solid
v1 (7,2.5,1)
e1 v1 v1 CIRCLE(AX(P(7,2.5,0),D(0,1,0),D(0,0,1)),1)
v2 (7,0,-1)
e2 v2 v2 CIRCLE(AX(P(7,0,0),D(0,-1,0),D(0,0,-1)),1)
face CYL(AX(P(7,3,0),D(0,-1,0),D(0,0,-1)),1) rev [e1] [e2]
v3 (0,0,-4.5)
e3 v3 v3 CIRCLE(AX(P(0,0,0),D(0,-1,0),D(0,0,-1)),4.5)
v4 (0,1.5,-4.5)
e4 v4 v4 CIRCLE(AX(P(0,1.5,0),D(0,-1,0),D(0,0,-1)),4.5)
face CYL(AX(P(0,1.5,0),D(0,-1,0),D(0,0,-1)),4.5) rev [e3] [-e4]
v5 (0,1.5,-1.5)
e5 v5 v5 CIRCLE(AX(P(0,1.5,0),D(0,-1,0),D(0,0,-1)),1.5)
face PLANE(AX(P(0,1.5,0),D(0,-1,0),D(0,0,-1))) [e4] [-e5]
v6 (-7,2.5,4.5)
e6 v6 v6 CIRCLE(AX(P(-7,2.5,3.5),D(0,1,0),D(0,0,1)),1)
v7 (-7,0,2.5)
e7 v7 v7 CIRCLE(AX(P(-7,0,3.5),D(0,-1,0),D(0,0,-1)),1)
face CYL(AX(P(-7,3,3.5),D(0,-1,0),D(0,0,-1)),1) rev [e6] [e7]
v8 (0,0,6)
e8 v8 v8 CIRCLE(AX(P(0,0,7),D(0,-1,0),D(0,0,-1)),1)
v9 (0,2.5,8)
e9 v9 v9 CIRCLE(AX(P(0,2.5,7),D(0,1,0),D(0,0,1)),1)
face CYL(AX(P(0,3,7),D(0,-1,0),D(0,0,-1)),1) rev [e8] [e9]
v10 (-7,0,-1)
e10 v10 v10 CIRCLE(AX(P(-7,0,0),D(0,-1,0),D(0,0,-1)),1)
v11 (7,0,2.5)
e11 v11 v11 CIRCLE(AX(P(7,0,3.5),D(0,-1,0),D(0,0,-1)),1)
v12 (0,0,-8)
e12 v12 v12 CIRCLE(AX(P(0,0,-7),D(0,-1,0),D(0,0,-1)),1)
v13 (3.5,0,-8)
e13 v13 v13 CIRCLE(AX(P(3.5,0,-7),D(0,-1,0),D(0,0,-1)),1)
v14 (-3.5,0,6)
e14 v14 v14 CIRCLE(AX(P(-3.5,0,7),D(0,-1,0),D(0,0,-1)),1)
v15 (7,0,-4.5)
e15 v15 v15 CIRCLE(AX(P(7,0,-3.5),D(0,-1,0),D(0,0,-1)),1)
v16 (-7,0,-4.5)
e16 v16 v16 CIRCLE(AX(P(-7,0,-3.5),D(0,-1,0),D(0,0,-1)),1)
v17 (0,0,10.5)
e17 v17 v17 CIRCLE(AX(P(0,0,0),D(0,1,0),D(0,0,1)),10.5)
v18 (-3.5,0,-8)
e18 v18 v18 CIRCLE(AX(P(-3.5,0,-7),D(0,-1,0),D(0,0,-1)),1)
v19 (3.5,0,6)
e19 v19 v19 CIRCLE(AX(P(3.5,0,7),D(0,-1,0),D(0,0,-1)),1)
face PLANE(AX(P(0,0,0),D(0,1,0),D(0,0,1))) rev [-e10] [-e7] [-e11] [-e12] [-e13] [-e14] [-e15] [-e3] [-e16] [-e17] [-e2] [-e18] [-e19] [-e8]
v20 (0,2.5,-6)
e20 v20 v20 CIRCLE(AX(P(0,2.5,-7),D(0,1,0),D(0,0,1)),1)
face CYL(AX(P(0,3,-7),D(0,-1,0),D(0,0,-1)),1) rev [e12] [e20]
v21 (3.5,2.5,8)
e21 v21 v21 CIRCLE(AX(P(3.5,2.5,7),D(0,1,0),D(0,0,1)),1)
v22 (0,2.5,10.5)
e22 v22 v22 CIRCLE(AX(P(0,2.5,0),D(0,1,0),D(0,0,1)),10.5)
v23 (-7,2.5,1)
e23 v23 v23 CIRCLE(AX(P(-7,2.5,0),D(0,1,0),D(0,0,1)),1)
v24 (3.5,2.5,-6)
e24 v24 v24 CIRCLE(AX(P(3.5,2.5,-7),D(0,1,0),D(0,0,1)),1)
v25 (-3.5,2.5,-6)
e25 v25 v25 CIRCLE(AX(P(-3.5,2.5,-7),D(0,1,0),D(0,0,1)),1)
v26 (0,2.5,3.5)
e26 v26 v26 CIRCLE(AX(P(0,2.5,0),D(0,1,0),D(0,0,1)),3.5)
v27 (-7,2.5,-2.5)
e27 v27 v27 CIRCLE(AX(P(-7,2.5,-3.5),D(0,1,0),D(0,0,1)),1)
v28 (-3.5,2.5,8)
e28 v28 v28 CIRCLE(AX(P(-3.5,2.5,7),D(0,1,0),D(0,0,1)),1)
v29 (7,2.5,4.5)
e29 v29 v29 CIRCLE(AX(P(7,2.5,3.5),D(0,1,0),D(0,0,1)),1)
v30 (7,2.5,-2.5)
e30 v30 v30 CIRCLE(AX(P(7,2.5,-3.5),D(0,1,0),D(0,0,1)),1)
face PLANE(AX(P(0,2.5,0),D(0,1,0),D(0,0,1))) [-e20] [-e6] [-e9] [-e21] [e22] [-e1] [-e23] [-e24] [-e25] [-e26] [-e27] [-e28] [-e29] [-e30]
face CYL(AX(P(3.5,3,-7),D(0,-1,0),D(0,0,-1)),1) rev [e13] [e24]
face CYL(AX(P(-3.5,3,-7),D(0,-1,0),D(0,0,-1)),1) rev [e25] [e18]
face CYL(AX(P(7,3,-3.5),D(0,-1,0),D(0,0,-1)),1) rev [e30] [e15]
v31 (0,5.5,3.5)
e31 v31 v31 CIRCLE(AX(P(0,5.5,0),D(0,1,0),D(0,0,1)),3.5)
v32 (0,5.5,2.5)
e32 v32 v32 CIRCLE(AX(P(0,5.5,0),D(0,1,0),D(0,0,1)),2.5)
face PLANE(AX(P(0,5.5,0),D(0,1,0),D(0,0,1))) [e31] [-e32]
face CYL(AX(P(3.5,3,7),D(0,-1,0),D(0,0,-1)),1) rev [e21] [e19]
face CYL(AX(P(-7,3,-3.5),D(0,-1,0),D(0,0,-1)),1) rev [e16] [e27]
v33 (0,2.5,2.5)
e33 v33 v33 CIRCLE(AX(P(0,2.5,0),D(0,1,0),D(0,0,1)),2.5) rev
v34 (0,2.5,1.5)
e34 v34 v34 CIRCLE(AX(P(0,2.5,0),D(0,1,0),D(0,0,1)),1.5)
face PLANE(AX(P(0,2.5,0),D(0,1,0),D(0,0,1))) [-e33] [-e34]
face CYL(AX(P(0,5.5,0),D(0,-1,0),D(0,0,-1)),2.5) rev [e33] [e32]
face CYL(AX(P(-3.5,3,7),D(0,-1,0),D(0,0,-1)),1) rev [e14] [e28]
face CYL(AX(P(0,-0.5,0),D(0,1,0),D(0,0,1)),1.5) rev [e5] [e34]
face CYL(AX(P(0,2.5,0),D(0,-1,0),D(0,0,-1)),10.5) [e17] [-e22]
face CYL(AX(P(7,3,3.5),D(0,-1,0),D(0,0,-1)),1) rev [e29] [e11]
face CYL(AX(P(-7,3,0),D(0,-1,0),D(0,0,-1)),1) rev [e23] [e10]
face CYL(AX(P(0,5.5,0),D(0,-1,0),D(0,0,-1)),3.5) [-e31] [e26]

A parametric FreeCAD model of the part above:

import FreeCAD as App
import Part
import Sketcher
from FreeCAD import Vector
Q = App.Units.Quantity

doc = App.newDocument("Part")
params = doc.addObject("Spreadsheet::Sheet", "Params")
for row, (alias, value) in enumerate([
    ("sketch1_diameter", "21 mm"),
    ("pad1_length", "2.5 mm"),
    ("sketch2_diameter", "7 mm"),
    ("sketch2_diameter2", "5 mm"),
    ("pad2_length", "3 mm"),
    ("sketch3_diameter", "3 mm"),
    ("pocket1_length", "3 mm"),
    ("sketch4_diameter", "9 mm"),
    ("sketch4_diameter2", "3 mm"),
    ("pocket2_length", "1.5 mm"),
    ("sketch5_diameter", "2 mm"),
    ("pocket3_length", "3 mm"),
], start=1):
    params.set(f"A{row}", alias)
    params.set(f"B{row}", "=" + value)
    params.setAlias(f"B{row}", alias)

body = doc.addObject("PartDesign::Body", "Body")

# Sketch on XZ plane
sketch1 = body.newObject("Sketcher::SketchObject", "Sketch")
sketch1.AttachmentSupport = (doc.getObject("XZ_Plane"), [""])
sketch1.MapMode = "FlatFace"
sketch1.addGeometry(Part.Circle(Vector(0, 0, 0), Vector(0, 0, 1), 10), False)
sketch1.addConstraint([
    Sketcher.Constraint("Coincident", 0, 3, -1, 1),
    Sketcher.Constraint("Diameter", 0, Q("21 mm")),
])
sketch1.setExpression("Constraints[1]", "Params.sketch1_diameter")
pad1 = body.newObject("PartDesign::Pad", "Pad")
pad1.Profile = sketch1
pad1.setExpression("Length", "Params.pad1_length")
pad1.Reversed = True

# Sketch on XZ plane
sketch2 = body.newObject("Sketcher::SketchObject", "Sketch001")
sketch2.AttachmentSupport = (doc.getObject("XZ_Plane"), [""])
sketch2.MapMode = "FlatFace"
sketch2.AttachmentOffset = App.Placement(Vector(0, 0, -2.5), App.Rotation())
sketch2.addGeometry([
    Part.Circle(Vector(0, 0, 0), Vector(0, 0, 1), 3.5),
    Part.Circle(Vector(0, 0, 0), Vector(0, 0, 1), 2.5),
], False)
sketch2.addConstraint([
    Sketcher.Constraint("Coincident", 0, 3, -1, 1),
    Sketcher.Constraint("Coincident", 1, 3, -1, 1),
    Sketcher.Constraint("Diameter", 0, Q("7 mm")),
    Sketcher.Constraint("Diameter", 1, Q("5 mm")),
])
sketch2.setExpression("Constraints[2]", "Params.sketch2_diameter")
sketch2.setExpression("Constraints[3]", "Params.sketch2_diameter2")
pad2 = body.newObject("PartDesign::Pad", "Pad001")
pad2.Profile = sketch2
pad2.setExpression("Length", "Params.pad2_length")
pad2.Reversed = True

# Sketch on XZ plane
sketch3 = body.newObject("Sketcher::SketchObject", "Sketch002")
sketch3.AttachmentSupport = (doc.getObject("XZ_Plane"), [""])
sketch3.MapMode = "FlatFace"
sketch3.AttachmentOffset = App.Placement(Vector(0, 0, -2.5), App.Rotation())
sketch3.addGeometry(Part.Circle(Vector(0, 0, 0), Vector(0, 0, 1), 1.5), False)
sketch3.addConstraint([
    Sketcher.Constraint("Coincident", 0, 3, -1, 1),
    Sketcher.Constraint("Diameter", 0, Q("3 mm")),
])
sketch3.setExpression("Constraints[1]", "Params.sketch3_diameter")
pocket1 = body.newObject("PartDesign::Pocket", "Pocket")
pocket1.Profile = sketch3
pocket1.setExpression("Length", "Params.pocket1_length")
pocket1.Reversed = True

# Sketch on XZ plane
sketch4 = body.newObject("Sketcher::SketchObject", "Sketch003")
sketch4.AttachmentSupport = (doc.getObject("XZ_Plane"), [""])
sketch4.MapMode = "FlatFace"
sketch4.AttachmentOffset = App.Placement(Vector(0, 0, -1.5), App.Rotation())
sketch4.addGeometry([
    Part.Circle(Vector(0, 0, 0), Vector(0, 0, 1), 4.5),
    Part.Circle(Vector(0, 0, 0), Vector(0, 0, 1), 1.5),
], False)
sketch4.addConstraint([
    Sketcher.Constraint("Coincident", 0, 3, -1, 1),
    Sketcher.Constraint("Coincident", 1, 3, -1, 1),
    Sketcher.Constraint("Diameter", 0, Q("9 mm")),
    Sketcher.Constraint("Diameter", 1, Q("3 mm")),
])
sketch4.setExpression("Constraints[2]", "Params.sketch4_diameter")
sketch4.setExpression("Constraints[3]", "Params.sketch4_diameter2")
pocket2 = body.newObject("PartDesign::Pocket", "Pocket001")
pocket2.Profile = sketch4
pocket2.setExpression("Length", "Params.pocket2_length")
pocket2.Reversed = True

# Sketch on XZ plane
sketch5 = body.newObject("Sketcher::SketchObject", "Sketch004")
sketch5.AttachmentSupport = (doc.getObject("XZ_Plane"), [""])
sketch5.MapMode = "FlatFace"
sketch5.addGeometry([
    Part.Circle(Vector(0, 7, 0), Vector(0, 0, 1), 1),  # 0
    Part.Circle(Vector(3.5, 7, 0), Vector(0, 0, 1), 1),  # 1
    Part.Circle(Vector(-3.5, 7, 0), Vector(0, 0, 1), 1),  # 2
    Part.Circle(Vector(7, 3.5, 0), Vector(0, 0, 1), 1),  # 3
    Part.Circle(Vector(7, 0, 0), Vector(0, 0, 1), 1),  # 4
    Part.Circle(Vector(7, -3.5, 0), Vector(0, 0, 1), 1),  # 5
    Part.Circle(Vector(3.5, -7, 0), Vector(0, 0, 1), 1),  # 6
    Part.Circle(Vector(0, -7, 0), Vector(0, 0, 1), 1),  # 7
    Part.Circle(Vector(-3.5, -7, 0), Vector(0, 0, 1), 1),  # 8
    Part.Circle(Vector(-7, -3.5, 0), Vector(0, 0, 1), 1),  # 9
    Part.Circle(Vector(-7, 0, 0), Vector(0, 0, 1), 1),  # 10
    Part.Circle(Vector(-7, 3.5, 0), Vector(0, 0, 1), 1),  # 11
], False)
sketch5.addConstraint([
    Sketcher.Constraint("Equal", 0, 1),
    Sketcher.Constraint("Equal", 1, 2),
    Sketcher.Constraint("Equal", 2, 3),
    Sketcher.Constraint("Equal", 3, 4),
    Sketcher.Constraint("Equal", 4, 5),
    Sketcher.Constraint("Equal", 5, 6),
    Sketcher.Constraint("Equal", 6, 7),
    Sketcher.Constraint("Equal", 7, 8),
    Sketcher.Constraint("Equal", 8, 9),
    Sketcher.Constraint("Equal", 9, 10),
    Sketcher.Constraint("Equal", 10, 11),
    Sketcher.Constraint("Symmetric", 2, 3, 6, 3, -1, 1),
    Sketcher.Constraint("Symmetric", 0, 3, 7, 3, -1, 1),
    Sketcher.Constraint("Symmetric", 1, 3, 8, 3, -1, 1),
    Sketcher.Constraint("Symmetric", 3, 3, 9, 3, -1, 1),
    Sketcher.Constraint("Symmetric", 4, 3, 10, 3, -1, 1),
    Sketcher.Constraint("Symmetric", 5, 3, 11, 3, -1, 1),
    Sketcher.Constraint("Symmetric", 1, 3, 2, 3, -2),
    Sketcher.Constraint("Symmetric", 5, 3, 9, 3, -2),
    Sketcher.Constraint("PointOnObject", 0, 3, -2),
    Sketcher.Constraint("PointOnObject", 4, 3, -1),
    Sketcher.Constraint("Horizontal", 0, 3, 1, 3),
    Sketcher.Constraint("Vertical", 3, 3, 4, 3),
    Sketcher.Constraint("Diameter", 0, Q("2 mm")),
    Sketcher.Constraint("DistanceY", -1, 1, 0, 3, Q("7 mm")),
    Sketcher.Constraint("DistanceX", -1, 1, 3, 3, Q("7 mm")),
    Sketcher.Constraint("DistanceX", 2, 3, 1, 3, Q("7 mm")),
    Sketcher.Constraint("DistanceY", 5, 3, 3, 3, Q("7 mm")),
])
sketch5.setExpression("Constraints[23]", "Params.sketch5_diameter")
pocket3 = body.newObject("PartDesign::Pocket", "Pocket002")
pocket3.Profile = sketch5
pocket3.setExpression("Length", "Params.pocket3_length")

doc.recompute()
